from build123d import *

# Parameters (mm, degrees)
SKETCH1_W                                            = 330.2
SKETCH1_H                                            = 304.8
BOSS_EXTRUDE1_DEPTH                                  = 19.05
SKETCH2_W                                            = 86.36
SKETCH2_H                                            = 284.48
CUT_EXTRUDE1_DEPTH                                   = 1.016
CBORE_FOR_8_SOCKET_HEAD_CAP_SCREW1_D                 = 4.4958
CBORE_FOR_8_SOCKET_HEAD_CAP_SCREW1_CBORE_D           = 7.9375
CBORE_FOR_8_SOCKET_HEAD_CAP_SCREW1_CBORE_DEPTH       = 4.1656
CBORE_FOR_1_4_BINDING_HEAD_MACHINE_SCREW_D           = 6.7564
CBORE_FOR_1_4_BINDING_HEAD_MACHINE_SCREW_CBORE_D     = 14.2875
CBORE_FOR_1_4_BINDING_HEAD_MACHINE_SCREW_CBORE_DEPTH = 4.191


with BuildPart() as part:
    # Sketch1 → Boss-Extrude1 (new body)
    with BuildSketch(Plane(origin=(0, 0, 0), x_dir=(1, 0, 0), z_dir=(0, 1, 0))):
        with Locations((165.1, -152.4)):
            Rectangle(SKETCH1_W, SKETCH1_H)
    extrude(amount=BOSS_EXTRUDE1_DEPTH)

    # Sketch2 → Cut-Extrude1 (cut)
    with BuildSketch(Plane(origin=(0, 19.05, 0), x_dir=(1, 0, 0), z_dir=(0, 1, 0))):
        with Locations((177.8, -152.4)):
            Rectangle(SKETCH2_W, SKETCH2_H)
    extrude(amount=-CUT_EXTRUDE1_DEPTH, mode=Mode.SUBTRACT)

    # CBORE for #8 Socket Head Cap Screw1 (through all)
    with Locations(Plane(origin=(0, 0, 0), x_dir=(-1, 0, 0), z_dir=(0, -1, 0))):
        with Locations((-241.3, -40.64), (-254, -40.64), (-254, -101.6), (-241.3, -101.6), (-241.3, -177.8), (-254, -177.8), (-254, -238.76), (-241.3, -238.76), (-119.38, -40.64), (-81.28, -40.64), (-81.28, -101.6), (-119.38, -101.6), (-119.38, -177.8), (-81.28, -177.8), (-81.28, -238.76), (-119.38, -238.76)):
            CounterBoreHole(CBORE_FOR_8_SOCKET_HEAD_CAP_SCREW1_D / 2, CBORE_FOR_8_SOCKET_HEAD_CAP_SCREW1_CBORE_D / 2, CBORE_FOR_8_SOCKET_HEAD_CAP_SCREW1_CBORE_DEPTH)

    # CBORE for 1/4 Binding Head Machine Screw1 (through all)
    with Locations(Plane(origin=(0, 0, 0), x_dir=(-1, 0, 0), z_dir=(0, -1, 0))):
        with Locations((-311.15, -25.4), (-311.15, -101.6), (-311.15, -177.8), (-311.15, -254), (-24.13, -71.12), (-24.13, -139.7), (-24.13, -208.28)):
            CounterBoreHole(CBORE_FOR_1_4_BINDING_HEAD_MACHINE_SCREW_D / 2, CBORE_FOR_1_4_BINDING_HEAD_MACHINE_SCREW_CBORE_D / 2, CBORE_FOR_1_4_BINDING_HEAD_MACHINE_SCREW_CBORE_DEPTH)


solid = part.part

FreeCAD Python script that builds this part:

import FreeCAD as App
import Part
import Sketcher
Q = App.Units.Quantity


def add_polygon(sketch, points):
    """Adds a closed chain of lines whose ends are joined by coincident constraints."""
    first, n = sketch.GeometryCount, len(points)
    for a, b in zip(points, points[1:] + points[:1]):
        sketch.addGeometry(Part.LineSegment(App.Vector(*a, 0), App.Vector(*b, 0)), False)
    for i in range(n):
        sketch.addConstraint(Sketcher.Constraint("Coincident", first + i, 2, first + (i + 1) % n, 1))

doc = App.newDocument("Part")
body = doc.addObject("PartDesign::Body", "Body")

sketch1 = body.newObject("Sketcher::SketchObject", "Sketch")
sketch1.AttachmentSupport = (doc.getObject("XZ_Plane"), [""])
sketch1.MapMode = "FlatFace"
add_polygon(sketch1, [(0, 0), (0, 305), (330, 305), (330, 0)])
sketch1.addConstraint([
    Sketcher.Constraint("Vertical", 0),
    Sketcher.Constraint("Horizontal", 1),
    Sketcher.Constraint("Vertical", 2),
    Sketcher.Constraint("Horizontal", 3),
    Sketcher.Constraint("Coincident", 3, 2, -1, 1),
    Sketcher.Constraint("DistanceX", 1, 1, 1, 2, Q("13 in")),
    Sketcher.Constraint("DistanceY", 0, 1, 0, 2, Q("12 in")),
])
pad1 = body.newObject("PartDesign::Pad", "Pad")
pad1.Profile = sketch1
pad1.Length = Q("0.75 in")
pad1.Reversed = True

sketch2 = body.newObject("Sketcher::SketchObject", "Sketch001")
sketch2.AttachmentSupport = (doc.getObject("XZ_Plane"), [""])
sketch2.MapMode = "FlatFace"
sketch2.AttachmentOffset = App.Placement(App.Vector(0, 0, -0.75 * 25.4), App.Rotation())
add_polygon(sketch2, [(135, 10), (135, 295), (221, 295), (221, 10)])
sketch2.addConstraint([
    Sketcher.Constraint("Vertical", 0),
    Sketcher.Constraint("Horizontal", 1),
    Sketcher.Constraint("Vertical", 2),
    Sketcher.Constraint("Horizontal", 3),
    Sketcher.Constraint("DistanceX", 1, 1, 1, 2, Q("3.4 in")),
    Sketcher.Constraint("DistanceY", 0, 1, 0, 2, Q("11.2 in")),
    Sketcher.Constraint("DistanceX", -1, 1, 0, 2, Q("5.3 in")),
    Sketcher.Constraint("DistanceY", -1, 1, 0, 2, Q("11.6 in")),
])
pocket1 = body.newObject("PartDesign::Pocket", "Pocket")
pocket1.Profile = sketch2
pocket1.Length = Q("0.04 in")
pocket1.Reversed = True

sketch3 = body.newObject("Sketcher::SketchObject", "Sketch002")
sketch3.AttachmentSupport = (doc.getObject("XZ_Plane"), [""])
sketch3.MapMode = "FlatFace"
sketch3.addGeometry([
    Part.Circle(App.Vector(241.3, 40.6, 0), App.Vector(0, 0, 1), 2.2),
    Part.Circle(App.Vector(254, 40.6, 0), App.Vector(0, 0, 1), 2.2),
    Part.Circle(App.Vector(254, 101.6, 0), App.Vector(0, 0, 1), 2.2),
    Part.Circle(App.Vector(241.3, 101.6, 0), App.Vector(0, 0, 1), 2.2),
    Part.Circle(App.Vector(241.3, 177.8, 0), App.Vector(0, 0, 1), 2.2),
    Part.Circle(App.Vector(254, 177.8, 0), App.Vector(0, 0, 1), 2.2),
    Part.Circle(App.Vector(254, 238.8, 0), App.Vector(0, 0, 1), 2.2),
    Part.Circle(App.Vector(241.3, 238.8, 0), App.Vector(0, 0, 1), 2.2),
    Part.Circle(App.Vector(119.4, 40.6, 0), App.Vector(0, 0, 1), 2.2),
    Part.Circle(App.Vector(81.3, 40.6, 0), App.Vector(0, 0, 1), 2.2),
    Part.Circle(App.Vector(81.3, 101.6, 0), App.Vector(0, 0, 1), 2.2),
    Part.Circle(App.Vector(119.4, 101.6, 0), App.Vector(0, 0, 1), 2.2),
    Part.Circle(App.Vector(119.4, 177.8, 0), App.Vector(0, 0, 1), 2.2),
    Part.Circle(App.Vector(81.3, 177.8, 0), App.Vector(0, 0, 1), 2.2),
    Part.Circle(App.Vector(81.3, 238.8, 0), App.Vector(0, 0, 1), 2.2),
    Part.Circle(App.Vector(119.4, 238.8, 0), App.Vector(0, 0, 1), 2.2),
], False)
sketch3.addConstraint([
    Sketcher.Constraint("Equal", 0, 1),
    Sketcher.Constraint("Equal", 1, 2),
    Sketcher.Constraint("Equal", 2, 3),
    Sketcher.Constraint("Equal", 3, 4),
    Sketcher.Constraint("Equal", 4, 5),
    Sketcher.Constraint("Equal", 5, 6),
    Sketcher.Constraint("Equal", 6, 7),
    Sketcher.Constraint("Equal", 7, 8),
    Sketcher.Constraint("Equal", 8, 9),
    Sketcher.Constraint("Equal", 9, 10),
    Sketcher.Constraint("Equal", 10, 11),
    Sketcher.Constraint("Equal", 11, 12),
    Sketcher.Constraint("Equal", 12, 13),
    Sketcher.Constraint("Equal", 13, 14),
    Sketcher.Constraint("Equal", 14, 15),
    Sketcher.Constraint("Horizontal", 0, 3, 1, 3),
    Sketcher.Constraint("Horizontal", 2, 3, 3, 3),
    Sketcher.Constraint("Horizontal", 4, 3, 5, 3),
    Sketcher.Constraint("Horizontal", 6, 3, 7, 3),
    Sketcher.Constraint("Horizontal", 1, 3, 8, 3),
    Sketcher.Constraint("Horizontal", 8, 3, 9, 3),
    Sketcher.Constraint("Horizontal", 3, 3, 10, 3),
    Sketcher.Constraint("Horizontal", 10, 3, 11, 3),
    Sketcher.Constraint("Horizontal", 5, 3, 12, 3),
    Sketcher.Constraint("Horizontal", 12, 3, 13, 3),
    Sketcher.Constraint("Horizontal", 7, 3, 14, 3),
    Sketcher.Constraint("Horizontal", 14, 3, 15, 3),
    Sketcher.Constraint("Vertical", 1, 3, 2, 3),
    Sketcher.Constraint("Vertical", 0, 3, 3, 3),
    Sketcher.Constraint("Vertical", 3, 3, 4, 3),
    Sketcher.Constraint("Vertical", 2, 3, 5, 3),
    Sketcher.Constraint("Vertical", 5, 3, 6, 3),
    Sketcher.Constraint("Vertical", 4, 3, 7, 3),
    Sketcher.Constraint("Vertical", 9, 3, 10, 3),
    Sketcher.Constraint("Vertical", 8, 3, 11, 3),
    Sketcher.Constraint("Vertical", 11, 3, 12, 3),
    Sketcher.Constraint("Vertical", 10, 3, 13, 3),
    Sketcher.Constraint("Vertical", 13, 3, 14, 3),
    Sketcher.Constraint("Vertical", 12, 3, 15, 3),
    Sketcher.Constraint("Diameter", 0, Q("0.177 in")),
    Sketcher.Constraint("DistanceX", -1, 1, 1, 3, Q("10 in")),
    Sketcher.Constraint("DistanceY", -1, 1, 2, 3, Q("4 in")),
    Sketcher.Constraint("DistanceY", -1, 1, 4, 3, Q("7 in")),
    Sketcher.Constraint("DistanceX", -1, 1, 0, 3, Q("9.5 in")),
    Sketcher.Constraint("DistanceY", -1, 1, 0, 3, Q("1.6 in")),
    Sketcher.Constraint("DistanceY", -1, 1, 6, 3, Q("9.4 in")),
    Sketcher.Constraint("DistanceX", -1, 1, 8, 3, Q("4.7 in")),
    Sketcher.Constraint("DistanceX", -1, 1, 9, 3, Q("3.2 in")),
])
doc.recompute()
hole = body.newObject("PartDesign::Hole", "Hole")
hole.Profile = sketch3
hole.ThreadType = "None"
hole.Diameter = Q("0.177 in")
hole.DepthType = "ThroughAll"
hole.HoleCutType = "Counterbore"
hole.HoleCutDiameter = Q("0.3125 in")
hole.HoleCutDepth = Q("0.164 in")

sketch4 = body.newObject("Sketcher::SketchObject", "Sketch003")
sketch4.AttachmentSupport = (doc.getObject("XZ_Plane"), [""])
sketch4.MapMode = "FlatFace"
sketch4.addGeometry([
    Part.Circle(App.Vector(311.1, 25.4, 0), App.Vector(0, 0, 1), 3.4),
    Part.Circle(App.Vector(311.1, 101.6, 0), App.Vector(0, 0, 1), 3.4),
    Part.Circle(App.Vector(311.1, 177.8, 0), App.Vector(0, 0, 1), 3.4),
    Part.Circle(App.Vector(311.1, 254, 0), App.Vector(0, 0, 1), 3.4),
    Part.Circle(App.Vector(24.1, 71.1, 0), App.Vector(0, 0, 1), 3.4),
    Part.Circle(App.Vector(24.1, 139.7, 0), App.Vector(0, 0, 1), 3.4),
    Part.Circle(App.Vector(24.1, 208.3, 0), App.Vector(0, 0, 1), 3.4),
], False)
sketch4.addConstraint([
    Sketcher.Constraint("Equal", 0, 1),
    Sketcher.Constraint("Equal", 1, 2),
    Sketcher.Constraint("Equal", 2, 3),
    Sketcher.Constraint("Equal", 3, 4),
    Sketcher.Constraint("Equal", 4, 5),
    Sketcher.Constraint("Equal", 5, 6),
    Sketcher.Constraint("Vertical", 0, 3, 1, 3),
    Sketcher.Constraint("Vertical", 1, 3, 2, 3),
    Sketcher.Constraint("Vertical", 2, 3, 3, 3),
    Sketcher.Constraint("Vertical", 4, 3, 5, 3),
    Sketcher.Constraint("Vertical", 5, 3, 6, 3),
    Sketcher.Constraint("Diameter", 0, Q("0.266 in")),
    Sketcher.Constraint("DistanceY", -1, 1, 0, 3, Q("1 in")),
    Sketcher.Constraint("DistanceY", -1, 1, 1, 3, Q("4 in")),
    Sketcher.Constraint("DistanceY", -1, 1, 2, 3, Q("7 in")),
    Sketcher.Constraint("DistanceY", -1, 1, 3, 3, Q("10 in")),
    Sketcher.Constraint("DistanceY", -1, 1, 4, 3, Q("2.8 in")),
    Sketcher.Constraint("DistanceY", -1, 1, 5, 3, Q("5.5 in")),
    Sketcher.Constraint("DistanceY", -1, 1, 6, 3, Q("8.2 in")),
    Sketcher.Constraint("DistanceX", 4, 3, 1, 3, Q("11.3 in")),
    Sketcher.Constraint("DistanceX", -1, 1, 0, 3, Q("12.25 in")),
])
doc.recompute()
hole2 = body.newObject("PartDesign::Hole", "Hole001")
hole2.Profile = sketch4
hole2.ThreadType = "None"
hole2.Diameter = Q("0.266 in")
hole2.DepthType = "ThroughAll"
hole2.HoleCutType = "Counterbore"
hole2.HoleCutDiameter = Q("0.5625 in")
hole2.HoleCutDepth = Q("0.165 in")

doc.recompute()
